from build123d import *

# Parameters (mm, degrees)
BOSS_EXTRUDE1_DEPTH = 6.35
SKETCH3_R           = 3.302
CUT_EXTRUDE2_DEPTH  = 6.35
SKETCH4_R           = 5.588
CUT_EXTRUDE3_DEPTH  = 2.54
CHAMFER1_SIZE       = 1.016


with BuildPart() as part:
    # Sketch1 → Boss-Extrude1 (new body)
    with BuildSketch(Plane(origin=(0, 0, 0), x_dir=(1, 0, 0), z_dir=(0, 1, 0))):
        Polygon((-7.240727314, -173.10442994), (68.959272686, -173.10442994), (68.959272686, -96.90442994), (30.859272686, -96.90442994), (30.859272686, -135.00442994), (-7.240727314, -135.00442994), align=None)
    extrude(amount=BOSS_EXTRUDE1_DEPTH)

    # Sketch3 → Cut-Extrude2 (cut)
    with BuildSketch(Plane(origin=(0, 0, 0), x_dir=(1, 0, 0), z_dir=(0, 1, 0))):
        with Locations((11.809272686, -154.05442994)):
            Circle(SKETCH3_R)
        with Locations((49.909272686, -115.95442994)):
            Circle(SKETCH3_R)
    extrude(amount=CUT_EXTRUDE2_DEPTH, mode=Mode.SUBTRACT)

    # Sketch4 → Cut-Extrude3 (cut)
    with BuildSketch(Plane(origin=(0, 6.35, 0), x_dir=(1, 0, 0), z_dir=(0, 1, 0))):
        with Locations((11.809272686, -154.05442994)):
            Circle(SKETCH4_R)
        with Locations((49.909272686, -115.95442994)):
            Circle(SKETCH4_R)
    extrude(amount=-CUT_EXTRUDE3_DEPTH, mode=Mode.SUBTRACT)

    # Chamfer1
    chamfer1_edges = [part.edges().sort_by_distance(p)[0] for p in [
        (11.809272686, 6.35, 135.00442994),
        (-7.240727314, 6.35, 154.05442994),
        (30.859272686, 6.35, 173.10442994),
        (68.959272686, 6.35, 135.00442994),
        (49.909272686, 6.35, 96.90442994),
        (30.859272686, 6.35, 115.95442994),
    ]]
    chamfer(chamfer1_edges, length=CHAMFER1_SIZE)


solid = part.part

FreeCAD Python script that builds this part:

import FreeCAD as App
import Part
import Sketcher

V = App.Vector
Q = App.Units.Quantity


def edges_at(feature, points):
    """Names of the edges that pass closest to the given points."""
    edges = feature.Shape.Edges
    near = lambda p: min(range(len(edges)), key=lambda i: edges[i].distToShape(Part.Vertex(*p))[0])
    return sorted({f"Edge{near(p) + 1}" for p in points})

doc = App.newDocument("Part")
params = doc.addObject("Spreadsheet::Sheet", "Params")
for row, (alias, value) in enumerate([
    ("sketch1_width", "3 in"),
    ("pad1_length", "0.25 in"),
    ("sketch2_diameter", "0.26 in"),
    ("pocket1_length", "0.25 in"),
    ("sketch3_diameter", "0.44 in"),
    ("pocket2_length", "0.1 in"),
    ("chamfer_size", "0.04 in"),
], start=1):
    params.set(f"A{row}", alias)
    params.set(f"B{row}", "=" + value)
    params.setAlias(f"B{row}", alias)

body = doc.addObject("PartDesign::Body", "Body")

sketch1 = body.newObject("Sketcher::SketchObject", "Sketch")
sketch1.AttachmentSupport = (doc.getObject("XZ_Plane"), [""])
sketch1.MapMode = "FlatFace"
sketch1.addGeometry(Part.LineSegment(V(-7.240727, 173.10443, 0), V(68.959273, 173.10443, 0)), False)
sketch1.addGeometry(Part.LineSegment(V(68.959273, 173.10443, 0), V(68.959273, 96.90443, 0)), False)
sketch1.addGeometry(Part.LineSegment(V(68.959273, 96.90443, 0), V(30.859273, 96.90443, 0)), False)
sketch1.addGeometry(Part.LineSegment(V(30.859273, 96.90443, 0), V(30.859273, 135.00443, 0)), False)
sketch1.addGeometry(Part.LineSegment(V(30.859273, 135.00443, 0), V(-7.240727, 135.00443, 0)), False)
sketch1.addGeometry(Part.LineSegment(V(-7.240727, 135.00443, 0), V(-7.240727, 173.10443, 0)), False)
sketch1.addConstraint(Sketcher.Constraint("Coincident", 0, 2, 1, 1))
sketch1.addConstraint(Sketcher.Constraint("Coincident", 1, 2, 2, 1))
sketch1.addConstraint(Sketcher.Constraint("Coincident", 2, 2, 3, 1))
sketch1.addConstraint(Sketcher.Constraint("Coincident", 3, 2, 4, 1))
sketch1.addConstraint(Sketcher.Constraint("Coincident", 4, 2, 5, 1))
sketch1.addConstraint(Sketcher.Constraint("Coincident", 5, 2, 0, 1))
sketch1.addConstraint(Sketcher.Constraint("Horizontal", 0))
sketch1.addConstraint(Sketcher.Constraint("Vertical", 1))
sketch1.addConstraint(Sketcher.Constraint("Horizontal", 2))
sketch1.addConstraint(Sketcher.Constraint("Vertical", 3))
sketch1.addConstraint(Sketcher.Constraint("Horizontal", 4))
sketch1.addConstraint(Sketcher.Constraint("Vertical", 5))
sketch1.addConstraint(Sketcher.Constraint("Equal", 2, 4))
sketch1.addConstraint(Sketcher.Constraint("Equal", 0, 1))
sketch1.addConstraint(Sketcher.Constraint("Equal", 4, 3))
sketch1.addConstraint(Sketcher.Constraint("DistanceX", 0, 1, 0, 2, Q("3 in")))
sketch1.addConstraint(Sketcher.Constraint("DistanceY", -1, 1, 0, 2, Q("173.10443 mm")))
sketch1.addConstraint(Sketcher.Constraint("DistanceX", -1, 1, 0, 2, Q("68.959273 mm")))
sketch1.setExpression("Constraints[15]", "Params.sketch1_width")
pad1 = body.newObject("PartDesign::Pad", "Pad")
pad1.Profile = sketch1
pad1.setExpression("Length", "Params.pad1_length")
pad1.Reversed = True

sketch2 = body.newObject("Sketcher::SketchObject", "Sketch001")
sketch2.AttachmentSupport = (doc.getObject("XZ_Plane"), [""])
sketch2.MapMode = "FlatFace"
sketch2.addGeometry(Part.Circle(V(11.809273, 154.05443, 0), V(0, 0, 1), 3.302), False)
sketch2.addGeometry(Part.Circle(V(49.909273, 115.95443, 0), V(0, 0, 1), 3.302), False)
sketch2.addConstraint(Sketcher.Constraint("Equal", 0, 1))
sketch2.addConstraint(Sketcher.Constraint("Diameter", 0, Q("0.26 in")))
sketch2.addConstraint(Sketcher.Constraint("DistanceX", 0, 3, 1, 3, Q("1.5 in")))
sketch2.addConstraint(Sketcher.Constraint("DistanceY", 1, 3, 0, 3, Q("1.5 in")))
sketch2.addConstraint(Sketcher.Constraint("DistanceY", -1, 1, 0, 3, Q("154.05443 mm")))
sketch2.addConstraint(Sketcher.Constraint("DistanceX", -1, 1, 0, 3, Q("11.809273 mm")))
sketch2.setExpression("Constraints[1]", "Params.sketch2_diameter")
pocket1 = body.newObject("PartDesign::Pocket", "Pocket")
pocket1.Profile = sketch2
pocket1.setExpression("Length", "Params.pocket1_length")

sketch3 = body.newObject("Sketcher::SketchObject", "Sketch002")
sketch3.AttachmentSupport = (doc.getObject("XZ_Plane"), [""])
sketch3.MapMode = "FlatFace"
sketch3.AttachmentOffset = App.Placement(V(0, 0, -0.25 * 25.4), App.Rotation())
sketch3.addGeometry(Part.Circle(V(11.809273, 154.05443, 0), V(0, 0, 1), 5.588), False)
sketch3.addGeometry(Part.Circle(V(49.909273, 115.95443, 0), V(0, 0, 1), 5.588), False)
sketch3.addConstraint(Sketcher.Constraint("Equal", 0, 1))
sketch3.addConstraint(Sketcher.Constraint("Diameter", 0, Q("0.44 in")))
sketch3.addConstraint(Sketcher.Constraint("DistanceX", 0, 3, 1, 3, Q("1.5 in")))
sketch3.addConstraint(Sketcher.Constraint("DistanceY", 1, 3, 0, 3, Q("1.5 in")))
sketch3.addConstraint(Sketcher.Constraint("DistanceY", -1, 1, 0, 3, Q("154.05443 mm")))
sketch3.addConstraint(Sketcher.Constraint("DistanceX", -1, 1, 0, 3, Q("11.809273 mm")))
sketch3.setExpression("Constraints[1]", "Params.sketch3_diameter")
pocket2 = body.newObject("PartDesign::Pocket", "Pocket001")
pocket2.Profile = sketch3
pocket2.setExpression("Length", "Params.pocket2_length")
pocket2.Reversed = True
doc.recompute()

chamfer = body.newObject("PartDesign::Chamfer", "Chamfer")
chamfer.Base = (pocket2, edges_at(pocket2, [
    (11.809, 6.35, 135.004),
    (-7.241, 6.35, 154.054),
    (30.859, 6.35, 173.104),
    (68.959, 6.35, 135.004),
    (49.909, 6.35, 96.904),
    (30.859, 6.35, 115.954),
]))
chamfer.setExpression("Size", "Params.chamfer_size")

doc.recompute()
